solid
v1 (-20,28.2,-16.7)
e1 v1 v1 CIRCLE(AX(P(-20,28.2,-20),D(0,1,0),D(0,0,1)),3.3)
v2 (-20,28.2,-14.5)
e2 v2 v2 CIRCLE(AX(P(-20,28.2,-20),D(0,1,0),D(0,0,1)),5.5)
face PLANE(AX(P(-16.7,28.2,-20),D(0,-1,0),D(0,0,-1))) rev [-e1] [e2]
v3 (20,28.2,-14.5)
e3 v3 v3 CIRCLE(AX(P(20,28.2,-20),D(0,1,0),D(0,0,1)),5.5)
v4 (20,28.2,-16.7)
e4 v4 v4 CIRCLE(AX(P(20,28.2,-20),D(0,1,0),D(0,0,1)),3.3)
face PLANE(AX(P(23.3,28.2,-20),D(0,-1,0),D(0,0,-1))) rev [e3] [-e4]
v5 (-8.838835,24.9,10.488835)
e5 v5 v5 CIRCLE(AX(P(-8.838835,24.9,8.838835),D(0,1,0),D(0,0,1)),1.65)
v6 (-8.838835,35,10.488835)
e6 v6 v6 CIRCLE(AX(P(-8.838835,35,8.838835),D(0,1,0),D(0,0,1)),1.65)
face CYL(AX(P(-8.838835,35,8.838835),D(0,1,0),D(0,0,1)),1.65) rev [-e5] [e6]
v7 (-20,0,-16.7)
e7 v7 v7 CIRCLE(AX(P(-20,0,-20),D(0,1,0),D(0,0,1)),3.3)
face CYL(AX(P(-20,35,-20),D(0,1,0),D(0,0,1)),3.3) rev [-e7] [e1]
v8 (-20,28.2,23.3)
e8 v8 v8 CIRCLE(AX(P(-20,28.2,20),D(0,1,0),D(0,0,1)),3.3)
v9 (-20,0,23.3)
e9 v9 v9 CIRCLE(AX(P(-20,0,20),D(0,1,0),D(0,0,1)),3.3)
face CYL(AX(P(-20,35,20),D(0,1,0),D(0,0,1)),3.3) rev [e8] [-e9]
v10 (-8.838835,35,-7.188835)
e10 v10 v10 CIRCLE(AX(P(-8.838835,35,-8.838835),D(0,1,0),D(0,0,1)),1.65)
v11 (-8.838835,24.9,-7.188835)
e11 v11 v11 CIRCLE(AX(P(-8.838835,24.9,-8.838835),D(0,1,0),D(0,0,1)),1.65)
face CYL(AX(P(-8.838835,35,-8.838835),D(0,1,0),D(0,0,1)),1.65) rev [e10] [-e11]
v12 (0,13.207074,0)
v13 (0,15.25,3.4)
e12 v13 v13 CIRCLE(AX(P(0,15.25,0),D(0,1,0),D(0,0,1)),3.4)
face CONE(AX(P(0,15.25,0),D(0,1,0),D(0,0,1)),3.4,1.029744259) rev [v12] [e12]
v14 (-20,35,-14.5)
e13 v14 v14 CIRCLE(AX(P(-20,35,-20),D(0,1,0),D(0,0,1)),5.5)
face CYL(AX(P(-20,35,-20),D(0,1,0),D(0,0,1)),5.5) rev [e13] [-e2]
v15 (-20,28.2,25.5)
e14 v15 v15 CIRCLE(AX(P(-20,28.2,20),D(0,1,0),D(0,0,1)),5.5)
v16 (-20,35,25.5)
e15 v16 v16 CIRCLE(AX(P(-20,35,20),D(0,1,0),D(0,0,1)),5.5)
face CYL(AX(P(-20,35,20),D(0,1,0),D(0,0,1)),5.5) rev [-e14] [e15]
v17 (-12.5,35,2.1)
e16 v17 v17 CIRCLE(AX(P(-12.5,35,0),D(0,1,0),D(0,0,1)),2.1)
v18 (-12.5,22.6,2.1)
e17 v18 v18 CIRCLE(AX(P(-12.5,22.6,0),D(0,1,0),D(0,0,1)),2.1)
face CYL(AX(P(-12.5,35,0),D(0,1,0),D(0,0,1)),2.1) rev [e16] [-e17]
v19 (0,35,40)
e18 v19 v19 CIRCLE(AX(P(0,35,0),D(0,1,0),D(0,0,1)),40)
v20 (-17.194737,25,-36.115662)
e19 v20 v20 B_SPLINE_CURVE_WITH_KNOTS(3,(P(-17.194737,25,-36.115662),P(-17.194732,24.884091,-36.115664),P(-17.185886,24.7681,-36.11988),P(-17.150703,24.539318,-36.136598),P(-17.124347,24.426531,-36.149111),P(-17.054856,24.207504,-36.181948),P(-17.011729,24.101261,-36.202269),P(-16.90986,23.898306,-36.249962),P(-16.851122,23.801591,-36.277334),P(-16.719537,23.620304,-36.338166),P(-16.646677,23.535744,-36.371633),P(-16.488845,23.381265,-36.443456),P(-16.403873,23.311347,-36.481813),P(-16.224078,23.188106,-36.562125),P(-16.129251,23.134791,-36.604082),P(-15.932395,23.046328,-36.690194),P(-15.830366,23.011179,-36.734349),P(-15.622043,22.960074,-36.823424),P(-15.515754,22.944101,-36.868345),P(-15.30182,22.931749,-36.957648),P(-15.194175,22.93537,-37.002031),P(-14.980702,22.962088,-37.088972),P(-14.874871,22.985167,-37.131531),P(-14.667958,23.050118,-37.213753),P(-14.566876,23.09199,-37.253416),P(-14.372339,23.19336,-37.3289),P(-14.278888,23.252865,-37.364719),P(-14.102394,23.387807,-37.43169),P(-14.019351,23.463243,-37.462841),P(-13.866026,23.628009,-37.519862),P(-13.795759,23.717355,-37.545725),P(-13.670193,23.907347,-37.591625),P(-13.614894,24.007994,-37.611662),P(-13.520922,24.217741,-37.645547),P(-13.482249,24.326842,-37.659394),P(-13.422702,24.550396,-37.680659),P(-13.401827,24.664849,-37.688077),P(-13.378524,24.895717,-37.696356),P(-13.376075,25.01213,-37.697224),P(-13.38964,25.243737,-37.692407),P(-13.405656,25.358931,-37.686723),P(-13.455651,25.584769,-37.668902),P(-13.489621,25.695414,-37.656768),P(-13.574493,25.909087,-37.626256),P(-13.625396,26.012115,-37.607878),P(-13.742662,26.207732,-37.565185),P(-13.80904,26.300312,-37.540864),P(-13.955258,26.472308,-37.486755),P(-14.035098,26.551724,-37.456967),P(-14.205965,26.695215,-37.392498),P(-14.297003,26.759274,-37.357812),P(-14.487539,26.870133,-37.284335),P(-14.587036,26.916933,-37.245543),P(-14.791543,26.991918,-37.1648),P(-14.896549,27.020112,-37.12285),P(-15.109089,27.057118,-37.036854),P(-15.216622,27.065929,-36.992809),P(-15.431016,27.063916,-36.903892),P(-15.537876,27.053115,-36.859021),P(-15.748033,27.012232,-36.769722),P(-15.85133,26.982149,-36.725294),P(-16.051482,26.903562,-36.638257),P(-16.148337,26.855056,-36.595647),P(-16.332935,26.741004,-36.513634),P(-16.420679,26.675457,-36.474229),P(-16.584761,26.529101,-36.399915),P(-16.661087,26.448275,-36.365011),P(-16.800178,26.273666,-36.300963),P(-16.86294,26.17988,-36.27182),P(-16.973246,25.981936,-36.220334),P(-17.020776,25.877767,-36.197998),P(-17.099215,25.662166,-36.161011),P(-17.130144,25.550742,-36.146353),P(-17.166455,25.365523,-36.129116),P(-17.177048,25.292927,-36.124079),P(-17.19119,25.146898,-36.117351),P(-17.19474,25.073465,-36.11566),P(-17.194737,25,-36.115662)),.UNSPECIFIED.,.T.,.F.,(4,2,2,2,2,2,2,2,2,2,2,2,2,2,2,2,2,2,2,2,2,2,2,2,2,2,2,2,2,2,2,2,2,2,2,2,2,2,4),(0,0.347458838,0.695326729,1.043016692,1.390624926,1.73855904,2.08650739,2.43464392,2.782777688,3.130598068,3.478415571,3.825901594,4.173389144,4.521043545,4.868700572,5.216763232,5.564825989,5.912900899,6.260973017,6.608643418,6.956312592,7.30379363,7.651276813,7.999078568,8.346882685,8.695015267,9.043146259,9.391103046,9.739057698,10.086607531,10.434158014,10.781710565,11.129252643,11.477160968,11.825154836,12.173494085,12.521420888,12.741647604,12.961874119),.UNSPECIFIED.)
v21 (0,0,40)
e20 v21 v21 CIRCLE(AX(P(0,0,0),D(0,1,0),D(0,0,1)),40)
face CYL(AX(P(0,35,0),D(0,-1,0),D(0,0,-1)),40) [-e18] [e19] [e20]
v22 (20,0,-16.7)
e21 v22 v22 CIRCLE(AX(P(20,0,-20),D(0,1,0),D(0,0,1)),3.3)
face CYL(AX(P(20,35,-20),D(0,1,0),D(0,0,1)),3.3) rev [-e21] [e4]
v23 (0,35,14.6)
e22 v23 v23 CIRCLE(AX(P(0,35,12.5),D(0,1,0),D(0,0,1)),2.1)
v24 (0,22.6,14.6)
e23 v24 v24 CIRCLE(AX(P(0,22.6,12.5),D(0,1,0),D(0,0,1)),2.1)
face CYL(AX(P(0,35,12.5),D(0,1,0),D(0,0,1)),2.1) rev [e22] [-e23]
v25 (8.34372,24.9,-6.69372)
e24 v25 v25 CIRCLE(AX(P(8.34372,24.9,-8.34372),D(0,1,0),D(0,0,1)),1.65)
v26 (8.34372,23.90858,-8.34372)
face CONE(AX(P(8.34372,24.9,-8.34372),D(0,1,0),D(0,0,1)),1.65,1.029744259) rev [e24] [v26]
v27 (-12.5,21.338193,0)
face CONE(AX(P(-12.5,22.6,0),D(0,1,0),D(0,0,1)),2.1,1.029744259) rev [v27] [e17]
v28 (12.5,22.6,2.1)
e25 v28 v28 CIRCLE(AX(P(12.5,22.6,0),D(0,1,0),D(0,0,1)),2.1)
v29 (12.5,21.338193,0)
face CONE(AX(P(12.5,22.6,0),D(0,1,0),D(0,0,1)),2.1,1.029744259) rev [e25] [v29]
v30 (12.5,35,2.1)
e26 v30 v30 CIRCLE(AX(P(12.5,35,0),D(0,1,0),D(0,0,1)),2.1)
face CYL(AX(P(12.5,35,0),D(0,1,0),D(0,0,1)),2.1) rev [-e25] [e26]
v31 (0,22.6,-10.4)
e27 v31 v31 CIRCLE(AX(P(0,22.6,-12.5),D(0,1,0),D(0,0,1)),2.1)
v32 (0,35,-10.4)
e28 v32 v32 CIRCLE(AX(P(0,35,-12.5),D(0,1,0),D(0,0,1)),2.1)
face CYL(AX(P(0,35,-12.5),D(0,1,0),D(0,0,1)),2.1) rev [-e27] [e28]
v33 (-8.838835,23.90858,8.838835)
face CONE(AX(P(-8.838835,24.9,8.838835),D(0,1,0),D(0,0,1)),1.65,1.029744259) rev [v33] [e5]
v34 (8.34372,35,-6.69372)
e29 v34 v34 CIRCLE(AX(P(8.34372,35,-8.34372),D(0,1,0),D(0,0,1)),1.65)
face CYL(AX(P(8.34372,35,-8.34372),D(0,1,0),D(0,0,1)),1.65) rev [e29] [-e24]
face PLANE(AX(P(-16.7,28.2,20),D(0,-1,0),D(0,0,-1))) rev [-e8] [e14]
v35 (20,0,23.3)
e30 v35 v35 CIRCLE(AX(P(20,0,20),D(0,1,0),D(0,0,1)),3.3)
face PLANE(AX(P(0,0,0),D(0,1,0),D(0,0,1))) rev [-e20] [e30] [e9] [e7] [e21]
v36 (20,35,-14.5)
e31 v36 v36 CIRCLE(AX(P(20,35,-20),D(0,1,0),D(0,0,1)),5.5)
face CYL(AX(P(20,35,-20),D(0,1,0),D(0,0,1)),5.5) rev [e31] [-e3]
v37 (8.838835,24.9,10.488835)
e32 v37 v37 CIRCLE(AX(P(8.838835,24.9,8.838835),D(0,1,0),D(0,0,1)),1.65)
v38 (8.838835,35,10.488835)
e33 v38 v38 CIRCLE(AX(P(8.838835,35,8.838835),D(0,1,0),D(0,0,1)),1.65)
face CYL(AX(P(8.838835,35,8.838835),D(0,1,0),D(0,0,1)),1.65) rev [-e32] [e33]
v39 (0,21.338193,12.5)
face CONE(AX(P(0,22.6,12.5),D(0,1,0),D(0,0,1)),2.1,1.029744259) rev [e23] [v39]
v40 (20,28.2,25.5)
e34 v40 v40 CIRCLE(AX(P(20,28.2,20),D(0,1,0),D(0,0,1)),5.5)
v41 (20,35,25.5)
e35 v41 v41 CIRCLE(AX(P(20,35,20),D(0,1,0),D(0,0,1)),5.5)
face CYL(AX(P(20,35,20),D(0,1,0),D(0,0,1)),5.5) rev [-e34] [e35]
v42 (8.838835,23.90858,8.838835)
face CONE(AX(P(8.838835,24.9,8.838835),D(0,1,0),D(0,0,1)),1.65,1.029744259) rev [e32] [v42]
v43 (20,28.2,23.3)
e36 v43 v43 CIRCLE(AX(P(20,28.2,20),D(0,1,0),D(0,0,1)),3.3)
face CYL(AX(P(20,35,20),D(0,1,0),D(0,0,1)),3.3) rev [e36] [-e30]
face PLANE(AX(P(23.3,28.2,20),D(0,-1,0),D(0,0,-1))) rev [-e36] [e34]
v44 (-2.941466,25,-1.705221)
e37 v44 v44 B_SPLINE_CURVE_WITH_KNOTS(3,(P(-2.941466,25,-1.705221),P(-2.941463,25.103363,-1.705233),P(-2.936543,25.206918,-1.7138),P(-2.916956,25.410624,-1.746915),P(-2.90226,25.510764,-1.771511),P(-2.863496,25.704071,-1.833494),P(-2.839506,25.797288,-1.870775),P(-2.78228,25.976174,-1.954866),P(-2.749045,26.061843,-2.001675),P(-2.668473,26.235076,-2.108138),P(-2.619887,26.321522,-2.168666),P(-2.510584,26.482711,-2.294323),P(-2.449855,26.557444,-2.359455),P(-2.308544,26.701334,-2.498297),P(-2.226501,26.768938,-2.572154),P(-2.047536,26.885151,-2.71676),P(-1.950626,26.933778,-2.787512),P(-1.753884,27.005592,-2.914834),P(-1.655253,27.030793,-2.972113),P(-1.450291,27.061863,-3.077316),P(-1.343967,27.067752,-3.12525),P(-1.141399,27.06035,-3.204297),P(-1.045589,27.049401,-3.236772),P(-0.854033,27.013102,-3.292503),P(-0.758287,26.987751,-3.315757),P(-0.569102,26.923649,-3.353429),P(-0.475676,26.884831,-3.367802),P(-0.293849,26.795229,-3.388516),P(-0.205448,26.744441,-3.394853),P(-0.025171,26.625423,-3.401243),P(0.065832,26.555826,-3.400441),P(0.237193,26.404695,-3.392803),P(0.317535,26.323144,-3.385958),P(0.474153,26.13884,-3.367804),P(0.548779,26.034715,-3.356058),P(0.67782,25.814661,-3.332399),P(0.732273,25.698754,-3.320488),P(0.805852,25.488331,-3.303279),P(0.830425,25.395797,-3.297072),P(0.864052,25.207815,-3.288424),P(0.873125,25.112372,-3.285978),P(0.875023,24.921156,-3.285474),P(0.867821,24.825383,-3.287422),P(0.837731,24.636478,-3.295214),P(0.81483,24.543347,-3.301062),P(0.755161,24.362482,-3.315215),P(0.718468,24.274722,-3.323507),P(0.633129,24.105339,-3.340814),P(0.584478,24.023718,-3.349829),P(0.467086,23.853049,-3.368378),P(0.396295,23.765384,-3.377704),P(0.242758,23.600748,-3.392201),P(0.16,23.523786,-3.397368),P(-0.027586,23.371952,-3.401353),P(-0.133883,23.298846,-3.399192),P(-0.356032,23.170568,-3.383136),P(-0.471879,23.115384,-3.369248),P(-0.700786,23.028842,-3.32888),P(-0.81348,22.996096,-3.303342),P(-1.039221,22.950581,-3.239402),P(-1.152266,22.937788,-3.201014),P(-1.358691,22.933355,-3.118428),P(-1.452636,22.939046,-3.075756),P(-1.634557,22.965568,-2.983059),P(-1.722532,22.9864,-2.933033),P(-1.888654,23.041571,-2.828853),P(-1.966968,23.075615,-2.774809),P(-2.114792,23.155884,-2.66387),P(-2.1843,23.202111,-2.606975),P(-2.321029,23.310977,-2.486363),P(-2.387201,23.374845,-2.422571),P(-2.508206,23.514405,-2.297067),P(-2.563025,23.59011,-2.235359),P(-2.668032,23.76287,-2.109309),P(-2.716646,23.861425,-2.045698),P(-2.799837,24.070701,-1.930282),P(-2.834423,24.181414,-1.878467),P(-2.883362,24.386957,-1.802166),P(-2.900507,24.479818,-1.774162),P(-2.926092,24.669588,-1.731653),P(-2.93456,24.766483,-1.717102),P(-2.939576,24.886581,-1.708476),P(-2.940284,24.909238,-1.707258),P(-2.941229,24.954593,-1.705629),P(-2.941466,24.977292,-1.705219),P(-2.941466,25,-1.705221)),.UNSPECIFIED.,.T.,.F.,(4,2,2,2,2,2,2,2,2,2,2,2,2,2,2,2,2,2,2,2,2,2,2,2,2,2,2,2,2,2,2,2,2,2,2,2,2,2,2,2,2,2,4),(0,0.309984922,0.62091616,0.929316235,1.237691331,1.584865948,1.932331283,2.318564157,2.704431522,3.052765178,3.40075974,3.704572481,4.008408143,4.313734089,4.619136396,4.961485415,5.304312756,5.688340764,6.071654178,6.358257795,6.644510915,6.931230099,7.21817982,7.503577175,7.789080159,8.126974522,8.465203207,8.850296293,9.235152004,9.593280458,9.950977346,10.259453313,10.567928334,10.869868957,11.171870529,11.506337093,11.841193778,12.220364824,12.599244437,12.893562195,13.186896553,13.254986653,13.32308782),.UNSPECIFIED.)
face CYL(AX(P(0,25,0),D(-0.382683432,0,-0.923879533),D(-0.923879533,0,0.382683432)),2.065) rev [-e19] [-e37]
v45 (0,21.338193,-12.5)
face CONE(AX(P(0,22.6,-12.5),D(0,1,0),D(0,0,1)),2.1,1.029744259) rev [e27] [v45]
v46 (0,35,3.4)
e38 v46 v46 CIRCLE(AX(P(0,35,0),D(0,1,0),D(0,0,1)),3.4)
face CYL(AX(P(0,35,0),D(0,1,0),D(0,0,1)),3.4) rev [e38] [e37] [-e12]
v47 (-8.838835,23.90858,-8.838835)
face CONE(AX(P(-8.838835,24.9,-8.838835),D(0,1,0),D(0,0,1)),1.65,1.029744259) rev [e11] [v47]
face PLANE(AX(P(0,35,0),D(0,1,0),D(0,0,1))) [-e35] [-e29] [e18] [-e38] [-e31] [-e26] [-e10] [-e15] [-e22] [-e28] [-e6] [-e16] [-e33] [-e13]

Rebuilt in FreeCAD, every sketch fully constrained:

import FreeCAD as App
import Part
import Sketcher
from FreeCAD import Vector
Q = App.Units.Quantity

doc = App.newDocument("Part")
body = doc.addObject("PartDesign::Body", "Body")

# Sketch on XZ plane
sketch1 = body.newObject("Sketcher::SketchObject", "Sketch")
sketch1.AttachmentSupport = (doc.getObject("XZ_Plane"), [""])
sketch1.MapMode = "FlatFace"
sketch1.addGeometry(Part.Circle(Vector(0, 0, 0), Vector(0, 0, 1), 40), False)
sketch1.addConstraint([
    Sketcher.Constraint("Coincident", 0, 3, -1, 1),
    Sketcher.Constraint("Diameter", 0, Q("80 mm")),
])
pad1 = body.newObject("PartDesign::Pad", "Pad")
pad1.Profile = sketch1
pad1.Length = 35
pad1.Reversed = True

# Sketch on XZ plane
sketch2 = body.newObject("Sketcher::SketchObject", "Sketch001")
sketch2.AttachmentSupport = (doc.getObject("XZ_Plane"), [""])
sketch2.MapMode = "FlatFace"
sketch2.AttachmentOffset = App.Placement(Vector(0, 0, -35), App.Rotation())
sketch2.addGeometry([
    Part.Circle(Vector(-20, -20, 0), Vector(0, 0, 1), 3.3),
    Part.Circle(Vector(20, -20, 0), Vector(0, 0, 1), 3.3),
    Part.Circle(Vector(20, 20, 0), Vector(0, 0, 1), 3.3),
    Part.Circle(Vector(-20, 20, 0), Vector(0, 0, 1), 3.3),
], False)
sketch2.addConstraint([
    Sketcher.Constraint("Equal", 0, 1),
    Sketcher.Constraint("Equal", 1, 2),
    Sketcher.Constraint("Equal", 2, 3),
    Sketcher.Constraint("Symmetric", 0, 3, 2, 3, -1, 1),
    Sketcher.Constraint("Symmetric", 1, 3, 3, 3, -1, 1),
    Sketcher.Constraint("Symmetric", 0, 3, 1, 3, -2),
    Sketcher.Constraint("Diameter", 0, Q("6.6 mm")),
    Sketcher.Constraint("DistanceX", 0, 3, -1, 1, Q("20 mm")),
    Sketcher.Constraint("DistanceY", 0, 3, -1, 1, Q("20 mm")),
])
doc.recompute()
hole = body.newObject("PartDesign::Hole", "Hole")
hole.Profile = sketch2
hole.ThreadType = "None"
hole.Diameter = 6.6
hole.DepthType = "Dimension"
hole.Depth = 50
hole.DrillPoint = "Angled"
hole.DrillPointAngle = 118
hole.HoleCutType = "Counterbore"
hole.HoleCutDiameter = 11
hole.HoleCutDepth = 6.8
hole.Reversed = True

# Sketch on XZ plane
sketch3 = body.newObject("Sketcher::SketchObject", "Sketch002")
sketch3.AttachmentSupport = (doc.getObject("XZ_Plane"), [""])
sketch3.MapMode = "FlatFace"
sketch3.AttachmentOffset = App.Placement(Vector(0, 0, -35), App.Rotation())
sketch3.addGeometry([
    Part.Circle(Vector(0, -12.5, 0), Vector(0, 0, 1), 2.1),
    Part.Circle(Vector(0, 12.5, 0), Vector(0, 0, 1), 2.1),
    Part.Circle(Vector(12.5, 0, 0), Vector(0, 0, 1), 2.1),
    Part.Circle(Vector(-12.5, 0, 0), Vector(0, 0, 1), 2.1),
], False)
sketch3.addConstraint([
    Sketcher.Constraint("Equal", 0, 1),
    Sketcher.Constraint("Equal", 1, 2),
    Sketcher.Constraint("Equal", 2, 3),
    Sketcher.Constraint("Symmetric", 0, 3, 1, 3, -1, 1),
    Sketcher.Constraint("Symmetric", 2, 3, 3, 3, -1, 1),
    Sketcher.Constraint("PointOnObject", 0, 3, -2),
    Sketcher.Constraint("PointOnObject", 2, 3, -1),
    Sketcher.Constraint("Diameter", 0, Q("4.2 mm")),
    Sketcher.Constraint("DistanceY", 0, 3, 1, 3, Q("25 mm")),
    Sketcher.Constraint("DistanceX", 3, 3, 2, 3, Q("25 mm")),
])
doc.recompute()
hole2 = body.newObject("PartDesign::Hole", "Hole001")
hole2.Profile = sketch3
hole2.ThreadType = "None"
hole2.Diameter = 4.2
hole2.DepthType = "Dimension"
hole2.Depth = 12.4
hole2.DrillPoint = "Angled"
hole2.DrillPointAngle = 118
hole2.Reversed = True

# Sketch on XZ plane
sketch4 = body.newObject("Sketcher::SketchObject", "Sketch003")
sketch4.AttachmentSupport = (doc.getObject("XZ_Plane"), [""])
sketch4.MapMode = "FlatFace"
sketch4.AttachmentOffset = App.Placement(Vector(0, 0, -35), App.Rotation())
sketch4.addGeometry([
    Part.Circle(Vector(-8.838835, -8.838835, 0), Vector(0, 0, 1), 1.65),
    Part.Circle(Vector(8.34372, -8.34372, 0), Vector(0, 0, 1), 1.65),
    Part.Circle(Vector(8.838835, 8.838835, 0), Vector(0, 0, 1), 1.65),
    Part.Circle(Vector(-8.838835, 8.838835, 0), Vector(0, 0, 1), 1.65),
], False)
sketch4.addConstraint([
    Sketcher.Constraint("Equal", 0, 1),
    Sketcher.Constraint("Equal", 1, 2),
    Sketcher.Constraint("Equal", 2, 3),
    Sketcher.Constraint("Symmetric", 0, 3, 2, 3, -1, 1),
    Sketcher.Constraint("Symmetric", 2, 3, 3, 3, -2),
    Sketcher.Constraint("Diameter", 0, Q("3.3 mm")),
    Sketcher.Constraint("DistanceX", -1, 1, 1, 3, Q("8.34372 mm")),
    Sketcher.Constraint("DistanceY", 1, 3, -1, 1, Q("8.34372 mm")),
    Sketcher.Constraint("DistanceX", 0, 3, 2, 3, Q("17.67767 mm")),
    Sketcher.Constraint("DistanceY", 0, 3, 2, 3, Q("17.67767 mm")),
])
doc.recompute()
hole3 = body.newObject("PartDesign::Hole", "Hole002")
hole3.Profile = sketch4
hole3.ThreadType = "None"
hole3.Diameter = 3.3
hole3.DepthType = "Dimension"
hole3.Depth = 10.1
hole3.DrillPoint = "Angled"
hole3.DrillPointAngle = 118
hole3.Reversed = True

# Sketch on XZ plane
sketch5 = body.newObject("Sketcher::SketchObject", "Sketch004")
sketch5.AttachmentSupport = (doc.getObject("XZ_Plane"), [""])
sketch5.MapMode = "FlatFace"
sketch5.AttachmentOffset = App.Placement(Vector(0, 0, -35), App.Rotation())
sketch5.addGeometry(Part.Circle(Vector(0, 0, 0), Vector(0, 0, 1), 3.4), False)
sketch5.addConstraint([
    Sketcher.Constraint("Coincident", 0, 3, -1, 1),
    Sketcher.Constraint("Diameter", 0, Q("6.8 mm")),
])
doc.recompute()
hole4 = body.newObject("PartDesign::Hole", "Hole003")
hole4.Profile = sketch5
hole4.ThreadType = "None"
hole4.Diameter = 6.8
hole4.DepthType = "Dimension"
hole4.Depth = 19.75
hole4.DrillPoint = "Angled"
hole4.DrillPointAngle = 118
hole4.Reversed = True

# Sketch on an angled plane
sketch6 = body.newObject("Sketcher::SketchObject", "Sketch005")
sketch6.Placement = App.Placement(Vector(-15.307337, 35, -36.955181), App.Rotation(Vector(-0.923879533, 0, 0.382683432), Vector(0, 1.000000001, 0), Vector(-0.382683432, 0, -0.923879533), "ZXY"))
sketch6.addGeometry(Part.Circle(Vector(0, -10, 0), Vector(0, 0, 1), 2.065), False)
sketch6.addConstraint([
    Sketcher.Constraint("PointOnObject", 0, 3, -2),
    Sketcher.Constraint("Diameter", 0, Q("4.13 mm")),
    Sketcher.Constraint("DistanceY", 0, 3, -1, 1, Q("10 mm")),
])
pocket1 = body.newObject("PartDesign::Pocket", "Pocket")
pocket1.Profile = sketch6
pocket1.Length = 40

doc.recompute()
